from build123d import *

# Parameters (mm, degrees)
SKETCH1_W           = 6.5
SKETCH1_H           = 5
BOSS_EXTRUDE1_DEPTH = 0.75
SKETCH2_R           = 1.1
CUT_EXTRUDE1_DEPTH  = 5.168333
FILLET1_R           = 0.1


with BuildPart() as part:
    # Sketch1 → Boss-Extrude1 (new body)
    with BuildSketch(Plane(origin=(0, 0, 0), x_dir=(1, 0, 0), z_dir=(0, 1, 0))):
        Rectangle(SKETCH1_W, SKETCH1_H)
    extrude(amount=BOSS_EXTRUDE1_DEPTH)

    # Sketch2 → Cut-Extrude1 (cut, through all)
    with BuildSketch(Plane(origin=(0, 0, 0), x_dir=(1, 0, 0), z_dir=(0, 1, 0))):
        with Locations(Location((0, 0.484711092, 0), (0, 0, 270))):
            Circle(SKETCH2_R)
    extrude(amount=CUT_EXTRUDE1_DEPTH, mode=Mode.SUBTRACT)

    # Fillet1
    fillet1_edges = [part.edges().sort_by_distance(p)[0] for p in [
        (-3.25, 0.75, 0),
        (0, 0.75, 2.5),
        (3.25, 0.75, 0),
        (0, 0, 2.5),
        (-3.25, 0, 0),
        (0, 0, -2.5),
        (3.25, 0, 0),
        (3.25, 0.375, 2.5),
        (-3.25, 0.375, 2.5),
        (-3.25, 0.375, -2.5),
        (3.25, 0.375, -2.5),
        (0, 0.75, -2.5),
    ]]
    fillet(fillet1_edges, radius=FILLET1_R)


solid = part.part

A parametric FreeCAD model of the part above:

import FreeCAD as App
import Part
import Sketcher

V = App.Vector
Q = App.Units.Quantity


def edges_at(feature, points):
    """Names of the edges that pass closest to the given points."""
    edges = feature.Shape.Edges
    near = lambda p: min(range(len(edges)), key=lambda i: edges[i].distToShape(Part.Vertex(*p))[0])
    return sorted({f"Edge{near(p) + 1}" for p in points})

doc = App.newDocument("Part")
body = doc.addObject("PartDesign::Body", "Body")

sketch1 = body.newObject("Sketcher::SketchObject", "Sketch")
sketch1.AttachmentSupport = (doc.getObject("XZ_Plane"), [""])
sketch1.MapMode = "FlatFace"
sketch1.addGeometry([
    Part.LineSegment(V(-3, -2, 0), V(-3, 2, 0)),
    Part.LineSegment(V(-3, 2, 0), V(3, 2, 0)),
    Part.LineSegment(V(3, 2, 0), V(3, -2, 0)),
    Part.LineSegment(V(3, -2, 0), V(-3, -2, 0)),
], False)
sketch1.addConstraint([
    Sketcher.Constraint("Coincident", 0, 2, 1, 1),
    Sketcher.Constraint("Coincident", 1, 2, 2, 1),
    Sketcher.Constraint("Coincident", 2, 2, 3, 1),
    Sketcher.Constraint("Coincident", 3, 2, 0, 1),
    Sketcher.Constraint("Vertical", 0),
    Sketcher.Constraint("Horizontal", 1),
    Sketcher.Constraint("Vertical", 2),
    Sketcher.Constraint("Horizontal", 3),
    Sketcher.Constraint("Symmetric", 0, 2, 2, 2, -1, 1),
    Sketcher.Constraint("DistanceY", 0, 1, 0, 2, Q("5 mm")),
    Sketcher.Constraint("DistanceX", 1, 1, 1, 2, Q("6.5 mm")),
])
pad1 = body.newObject("PartDesign::Pad", "Pad")
pad1.Profile = sketch1
pad1.Length = 0.75
pad1.Reversed = True

sketch2 = body.newObject("Sketcher::SketchObject", "Sketch001")
sketch2.AttachmentSupport = (doc.getObject("XZ_Plane"), [""])
sketch2.MapMode = "FlatFace"
sketch2.addGeometry(Part.Circle(V(0, -0.5, 0), V(0, 0, 1), 1.1), False)
sketch2.addConstraint([
    Sketcher.Constraint("PointOnObject", 0, 3, -2),
    Sketcher.Constraint("Diameter", 0, Q("2.2 mm")),
    Sketcher.Constraint("DistanceY", 0, 3, -1, 1, Q("0.484711 mm")),
])
pocket1 = body.newObject("PartDesign::Pocket", "Pocket")
pocket1.Profile = sketch2
pocket1.Type = "ThroughAll"
doc.recompute()

fillet = body.newObject("PartDesign::Fillet", "Fillet")
fillet.Base = (pocket1, edges_at(pocket1, [
    (-3.25, 0.75, 0),
    (0, 0.75, 2.5),
    (3.25, 0.75, 0),
    (0, 0, 2.5),
    (-3.25, 0, 0),
    (0, 0, -2.5),
    (3.25, 0, 0),
    (3.25, 0.375, 2.5),
    (-3.25, 0.375, 2.5),
    (-3.25, 0.375, -2.5),
    (3.25, 0.375, -2.5),
    (0, 0.75, -2.5),
]))
fillet.Radius = 0.1

doc.recompute()
